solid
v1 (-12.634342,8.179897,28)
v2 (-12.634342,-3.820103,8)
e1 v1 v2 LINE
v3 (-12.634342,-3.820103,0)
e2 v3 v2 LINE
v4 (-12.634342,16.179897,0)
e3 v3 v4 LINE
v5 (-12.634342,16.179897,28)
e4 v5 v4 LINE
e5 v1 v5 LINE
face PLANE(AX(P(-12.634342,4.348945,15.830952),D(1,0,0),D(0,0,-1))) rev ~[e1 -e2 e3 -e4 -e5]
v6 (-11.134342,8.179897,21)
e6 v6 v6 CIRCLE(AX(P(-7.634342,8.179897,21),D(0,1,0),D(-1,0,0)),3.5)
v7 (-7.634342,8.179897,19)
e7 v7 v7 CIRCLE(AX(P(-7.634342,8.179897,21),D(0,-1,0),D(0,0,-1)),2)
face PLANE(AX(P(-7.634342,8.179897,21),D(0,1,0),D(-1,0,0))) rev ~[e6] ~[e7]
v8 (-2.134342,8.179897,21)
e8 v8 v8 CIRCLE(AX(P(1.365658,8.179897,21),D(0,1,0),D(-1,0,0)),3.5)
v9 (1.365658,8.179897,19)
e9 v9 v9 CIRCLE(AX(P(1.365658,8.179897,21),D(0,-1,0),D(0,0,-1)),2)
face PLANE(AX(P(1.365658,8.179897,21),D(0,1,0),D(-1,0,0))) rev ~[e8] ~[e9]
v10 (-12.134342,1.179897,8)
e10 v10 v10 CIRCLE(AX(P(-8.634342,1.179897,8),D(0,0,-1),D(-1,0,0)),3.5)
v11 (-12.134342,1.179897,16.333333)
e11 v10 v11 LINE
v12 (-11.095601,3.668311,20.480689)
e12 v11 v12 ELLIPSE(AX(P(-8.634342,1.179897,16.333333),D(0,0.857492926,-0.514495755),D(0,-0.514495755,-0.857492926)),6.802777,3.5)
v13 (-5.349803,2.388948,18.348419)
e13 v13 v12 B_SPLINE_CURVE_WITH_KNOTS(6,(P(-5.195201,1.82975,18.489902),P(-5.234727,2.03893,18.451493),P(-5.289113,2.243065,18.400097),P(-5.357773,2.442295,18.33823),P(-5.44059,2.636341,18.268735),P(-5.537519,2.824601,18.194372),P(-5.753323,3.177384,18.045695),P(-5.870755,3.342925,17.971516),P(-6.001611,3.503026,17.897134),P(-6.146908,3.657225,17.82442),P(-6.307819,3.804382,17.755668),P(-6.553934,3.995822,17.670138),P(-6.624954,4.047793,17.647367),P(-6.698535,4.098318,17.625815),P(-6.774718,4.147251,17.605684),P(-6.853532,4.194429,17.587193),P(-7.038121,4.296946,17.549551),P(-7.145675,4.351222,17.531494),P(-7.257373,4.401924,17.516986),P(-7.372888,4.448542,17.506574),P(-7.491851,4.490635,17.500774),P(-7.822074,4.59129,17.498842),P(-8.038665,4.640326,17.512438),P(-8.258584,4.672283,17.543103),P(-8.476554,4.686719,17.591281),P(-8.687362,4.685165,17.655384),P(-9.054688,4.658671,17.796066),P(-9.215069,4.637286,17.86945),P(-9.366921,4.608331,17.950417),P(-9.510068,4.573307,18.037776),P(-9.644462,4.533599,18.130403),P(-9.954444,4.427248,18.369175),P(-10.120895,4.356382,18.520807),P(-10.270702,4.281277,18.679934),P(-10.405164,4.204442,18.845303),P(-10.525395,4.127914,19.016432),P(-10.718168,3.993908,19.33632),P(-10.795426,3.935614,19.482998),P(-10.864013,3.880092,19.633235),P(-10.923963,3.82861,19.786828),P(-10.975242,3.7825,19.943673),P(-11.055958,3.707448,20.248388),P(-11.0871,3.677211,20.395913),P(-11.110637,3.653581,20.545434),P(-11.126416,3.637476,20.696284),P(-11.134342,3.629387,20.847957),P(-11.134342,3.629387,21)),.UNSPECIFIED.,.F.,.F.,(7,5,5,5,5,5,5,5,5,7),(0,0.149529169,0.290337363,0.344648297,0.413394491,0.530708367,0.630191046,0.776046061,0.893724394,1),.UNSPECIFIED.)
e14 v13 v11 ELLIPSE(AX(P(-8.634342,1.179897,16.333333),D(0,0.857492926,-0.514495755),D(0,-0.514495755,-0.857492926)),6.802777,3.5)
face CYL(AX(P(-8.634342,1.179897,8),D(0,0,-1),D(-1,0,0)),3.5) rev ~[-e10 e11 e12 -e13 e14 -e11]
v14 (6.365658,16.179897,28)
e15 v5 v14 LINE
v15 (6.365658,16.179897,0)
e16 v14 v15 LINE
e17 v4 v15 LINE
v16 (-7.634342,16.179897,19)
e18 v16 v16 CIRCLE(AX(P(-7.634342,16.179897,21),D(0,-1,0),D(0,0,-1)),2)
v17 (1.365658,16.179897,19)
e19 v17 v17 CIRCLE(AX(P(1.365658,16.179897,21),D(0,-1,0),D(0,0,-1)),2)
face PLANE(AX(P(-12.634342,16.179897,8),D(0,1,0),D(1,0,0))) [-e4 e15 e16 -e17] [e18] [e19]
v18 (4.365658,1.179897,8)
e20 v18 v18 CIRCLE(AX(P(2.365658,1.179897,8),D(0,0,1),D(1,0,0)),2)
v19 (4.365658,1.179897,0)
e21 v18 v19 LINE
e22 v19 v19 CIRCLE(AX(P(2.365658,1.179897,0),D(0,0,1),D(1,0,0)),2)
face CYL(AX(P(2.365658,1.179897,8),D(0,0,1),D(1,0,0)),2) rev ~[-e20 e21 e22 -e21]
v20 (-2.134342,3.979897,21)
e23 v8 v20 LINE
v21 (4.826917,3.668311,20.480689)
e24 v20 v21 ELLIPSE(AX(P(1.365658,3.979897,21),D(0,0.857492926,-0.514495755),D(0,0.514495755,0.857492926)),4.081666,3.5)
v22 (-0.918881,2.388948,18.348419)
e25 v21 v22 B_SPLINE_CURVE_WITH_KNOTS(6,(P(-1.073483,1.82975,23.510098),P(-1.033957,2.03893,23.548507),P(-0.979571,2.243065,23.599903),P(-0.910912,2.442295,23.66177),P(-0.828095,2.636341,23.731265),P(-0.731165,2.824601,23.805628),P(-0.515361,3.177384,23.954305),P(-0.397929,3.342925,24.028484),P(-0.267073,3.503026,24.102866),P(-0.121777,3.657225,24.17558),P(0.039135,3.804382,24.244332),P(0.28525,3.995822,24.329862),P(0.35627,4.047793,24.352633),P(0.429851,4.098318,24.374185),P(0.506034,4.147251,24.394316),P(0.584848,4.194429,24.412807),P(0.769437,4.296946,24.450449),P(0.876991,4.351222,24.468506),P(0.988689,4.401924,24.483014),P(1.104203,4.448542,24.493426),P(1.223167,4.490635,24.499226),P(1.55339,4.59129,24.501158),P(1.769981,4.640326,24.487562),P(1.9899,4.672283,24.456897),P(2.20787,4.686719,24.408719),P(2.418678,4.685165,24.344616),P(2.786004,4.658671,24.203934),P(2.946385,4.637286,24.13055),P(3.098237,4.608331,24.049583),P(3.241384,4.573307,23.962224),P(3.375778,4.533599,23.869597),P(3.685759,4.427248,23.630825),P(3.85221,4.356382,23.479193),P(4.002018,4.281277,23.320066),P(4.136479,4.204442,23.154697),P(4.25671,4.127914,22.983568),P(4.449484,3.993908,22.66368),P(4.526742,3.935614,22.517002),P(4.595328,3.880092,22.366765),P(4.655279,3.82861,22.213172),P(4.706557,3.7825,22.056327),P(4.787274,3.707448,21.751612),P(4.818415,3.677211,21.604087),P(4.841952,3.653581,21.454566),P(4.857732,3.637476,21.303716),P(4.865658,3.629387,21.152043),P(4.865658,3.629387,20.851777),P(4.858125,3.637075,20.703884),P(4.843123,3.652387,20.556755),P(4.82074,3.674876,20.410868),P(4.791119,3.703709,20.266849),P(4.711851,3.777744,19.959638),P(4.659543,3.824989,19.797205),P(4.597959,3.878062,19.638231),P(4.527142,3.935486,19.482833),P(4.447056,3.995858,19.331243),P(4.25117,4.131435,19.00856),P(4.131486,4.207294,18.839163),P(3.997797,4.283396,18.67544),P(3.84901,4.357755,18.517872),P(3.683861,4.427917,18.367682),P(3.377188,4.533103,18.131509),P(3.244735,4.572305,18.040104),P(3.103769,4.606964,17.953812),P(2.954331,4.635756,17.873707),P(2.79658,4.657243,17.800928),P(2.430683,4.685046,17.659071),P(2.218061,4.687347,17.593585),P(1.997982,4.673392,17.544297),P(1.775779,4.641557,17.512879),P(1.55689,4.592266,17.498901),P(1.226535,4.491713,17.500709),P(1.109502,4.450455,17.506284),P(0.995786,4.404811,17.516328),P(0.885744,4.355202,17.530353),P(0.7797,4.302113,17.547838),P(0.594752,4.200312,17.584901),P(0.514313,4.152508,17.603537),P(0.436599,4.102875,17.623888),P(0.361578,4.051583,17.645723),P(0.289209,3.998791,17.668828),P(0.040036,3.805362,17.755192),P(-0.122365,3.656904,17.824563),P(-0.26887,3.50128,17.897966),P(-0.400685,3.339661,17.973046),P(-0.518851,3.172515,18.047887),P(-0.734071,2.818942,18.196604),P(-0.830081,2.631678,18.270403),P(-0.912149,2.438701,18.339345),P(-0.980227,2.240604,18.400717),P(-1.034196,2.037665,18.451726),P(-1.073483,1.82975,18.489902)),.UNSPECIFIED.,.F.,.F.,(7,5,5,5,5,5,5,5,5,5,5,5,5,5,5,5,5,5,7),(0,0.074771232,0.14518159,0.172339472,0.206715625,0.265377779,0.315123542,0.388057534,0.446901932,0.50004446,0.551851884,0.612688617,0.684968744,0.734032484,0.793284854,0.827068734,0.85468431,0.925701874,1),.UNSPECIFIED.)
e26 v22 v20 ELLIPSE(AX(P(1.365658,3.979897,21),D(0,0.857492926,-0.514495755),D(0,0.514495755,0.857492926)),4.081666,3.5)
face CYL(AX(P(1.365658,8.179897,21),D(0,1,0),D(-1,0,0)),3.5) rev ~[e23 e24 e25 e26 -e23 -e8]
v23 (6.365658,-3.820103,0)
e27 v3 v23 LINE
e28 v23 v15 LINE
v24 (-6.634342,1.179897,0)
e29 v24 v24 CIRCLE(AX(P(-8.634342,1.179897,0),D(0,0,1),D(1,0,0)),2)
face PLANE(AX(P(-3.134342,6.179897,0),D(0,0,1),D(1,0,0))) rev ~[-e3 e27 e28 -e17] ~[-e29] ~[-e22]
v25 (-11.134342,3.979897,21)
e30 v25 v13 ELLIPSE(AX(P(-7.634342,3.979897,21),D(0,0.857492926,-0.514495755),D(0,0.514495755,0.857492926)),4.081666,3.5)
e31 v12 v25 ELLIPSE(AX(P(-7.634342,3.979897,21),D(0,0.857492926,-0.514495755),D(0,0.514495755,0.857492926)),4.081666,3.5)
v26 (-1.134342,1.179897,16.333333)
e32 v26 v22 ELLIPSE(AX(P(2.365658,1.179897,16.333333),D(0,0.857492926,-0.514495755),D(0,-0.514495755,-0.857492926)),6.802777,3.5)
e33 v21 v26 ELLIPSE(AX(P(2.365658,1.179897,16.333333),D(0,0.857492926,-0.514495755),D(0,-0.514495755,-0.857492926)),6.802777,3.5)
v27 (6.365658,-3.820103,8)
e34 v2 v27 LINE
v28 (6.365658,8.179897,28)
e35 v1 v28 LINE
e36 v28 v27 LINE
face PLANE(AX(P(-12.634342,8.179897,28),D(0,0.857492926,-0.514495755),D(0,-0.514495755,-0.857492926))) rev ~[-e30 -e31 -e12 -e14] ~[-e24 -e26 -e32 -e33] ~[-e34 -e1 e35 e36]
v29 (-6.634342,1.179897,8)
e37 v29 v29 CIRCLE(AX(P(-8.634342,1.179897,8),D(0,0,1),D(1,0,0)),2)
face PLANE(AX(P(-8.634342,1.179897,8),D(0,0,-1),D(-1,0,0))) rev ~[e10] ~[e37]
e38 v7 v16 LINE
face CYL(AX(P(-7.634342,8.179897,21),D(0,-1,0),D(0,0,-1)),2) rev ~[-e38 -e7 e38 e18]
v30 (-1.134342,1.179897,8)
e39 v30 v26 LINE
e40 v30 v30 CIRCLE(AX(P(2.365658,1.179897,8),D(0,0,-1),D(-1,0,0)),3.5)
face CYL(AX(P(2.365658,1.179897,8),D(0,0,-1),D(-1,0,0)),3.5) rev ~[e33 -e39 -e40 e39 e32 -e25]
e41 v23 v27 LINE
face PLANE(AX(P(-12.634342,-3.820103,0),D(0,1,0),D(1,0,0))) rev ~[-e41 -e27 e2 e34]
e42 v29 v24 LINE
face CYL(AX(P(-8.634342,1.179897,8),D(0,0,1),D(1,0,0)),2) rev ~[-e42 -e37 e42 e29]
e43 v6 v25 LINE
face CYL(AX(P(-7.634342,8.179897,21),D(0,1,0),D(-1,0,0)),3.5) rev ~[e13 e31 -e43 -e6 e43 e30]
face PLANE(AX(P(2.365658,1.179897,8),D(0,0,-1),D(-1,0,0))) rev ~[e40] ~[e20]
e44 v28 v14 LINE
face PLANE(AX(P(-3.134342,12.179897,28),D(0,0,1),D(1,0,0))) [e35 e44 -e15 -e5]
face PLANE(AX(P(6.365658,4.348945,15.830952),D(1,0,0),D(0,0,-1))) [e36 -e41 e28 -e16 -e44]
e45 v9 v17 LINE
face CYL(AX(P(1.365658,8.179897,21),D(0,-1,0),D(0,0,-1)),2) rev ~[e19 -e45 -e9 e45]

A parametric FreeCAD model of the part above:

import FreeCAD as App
import Part
import Sketcher
from FreeCAD import Vector
Q = App.Units.Quantity


def add_polygon(sketch, points):
    """Adds a closed chain of lines whose ends are joined by coincident constraints."""
    first, n = sketch.GeometryCount, len(points)
    for a, b in zip(points, points[1:] + points[:1]):
        sketch.addGeometry(Part.LineSegment(App.Vector(*a, 0), App.Vector(*b, 0)), False)
    for i in range(n):
        sketch.addConstraint(Sketcher.Constraint("Coincident", first + i, 2, first + (i + 1) % n, 1))

doc = App.newDocument("Part")
body = doc.addObject("PartDesign::Body", "Body")

# Sketch on XY plane
sketch1 = body.newObject("Sketcher::SketchObject", "Sketch")
sketch1.AttachmentSupport = (doc.getObject("XY_Plane"), [""])
sketch1.MapMode = "FlatFace"
add_polygon(sketch1, [(-13, 16), (-13, -4), (6, -4), (6, 16)])  # lines 0-3
sketch1.addConstraint([
    Sketcher.Constraint("Vertical", 0),
    Sketcher.Constraint("Horizontal", 1),
    Sketcher.Constraint("Vertical", 2),
    Sketcher.Constraint("Horizontal", 3),
    Sketcher.Constraint("DistanceX", 1, 1, 1, 2, Q("19 mm")),
    Sketcher.Constraint("DistanceY", 0, 2, 0, 1, Q("20 mm")),
    Sketcher.Constraint("DistanceX", 0, 2, -1, 1, Q("12.634342 mm")),
    Sketcher.Constraint("DistanceY", 0, 2, -1, 1, Q("3.820103 mm")),
])
pad1 = body.newObject("PartDesign::Pad", "Pad")
pad1.Profile = sketch1
pad1.Length = 8

# Sketch on XY plane
sketch2 = body.newObject("Sketcher::SketchObject", "Sketch001")
sketch2.AttachmentSupport = (doc.getObject("XY_Plane"), [""])
sketch2.MapMode = "FlatFace"
sketch2.AttachmentOffset = App.Placement(Vector(0, 0, 8), App.Rotation())
add_polygon(sketch2, [(-13, 16), (-13, 8), (6, 8), (6, 16)])  # lines 0-3
sketch2.addConstraint([
    Sketcher.Constraint("Vertical", 0),
    Sketcher.Constraint("Horizontal", 1),
    Sketcher.Constraint("Vertical", 2),
    Sketcher.Constraint("Horizontal", 3),
    Sketcher.Constraint("DistanceX", 1, 1, 1, 2, Q("19 mm")),
    Sketcher.Constraint("DistanceY", 0, 2, 0, 1, Q("8 mm")),
    Sketcher.Constraint("DistanceX", 0, 2, -1, 1, Q("12.634342 mm")),
    Sketcher.Constraint("DistanceY", -1, 1, 0, 2, Q("8.179897 mm")),
])
pad2 = body.newObject("PartDesign::Pad", "Pad001")
pad2.Profile = sketch2
pad2.Length = 20

# Sketch on XY plane
sketch3 = body.newObject("Sketcher::SketchObject", "Sketch002")
sketch3.AttachmentSupport = (doc.getObject("XY_Plane"), [""])
sketch3.MapMode = "FlatFace"
sketch3.AttachmentOffset = App.Placement(Vector(0, 0, 8), App.Rotation())
sketch3.addGeometry([
    Part.Circle(Vector(-8.6, 1.2, 0), Vector(0, 0, 1), 2),
    Part.Circle(Vector(2.4, 1.2, 0), Vector(0, 0, 1), 2),
], False)
sketch3.addConstraint([
    Sketcher.Constraint("Equal", 0, 1),
    Sketcher.Constraint("Horizontal", 0, 3, 1, 3),
    Sketcher.Constraint("Diameter", 0, Q("4 mm")),
    Sketcher.Constraint("DistanceX", 0, 3, 1, 3, Q("11 mm")),
    Sketcher.Constraint("DistanceX", 0, 3, -1, 1, Q("8.634342 mm")),
    Sketcher.Constraint("DistanceY", -1, 1, 0, 3, Q("1.179897 mm")),
])
pocket1 = body.newObject("PartDesign::Pocket", "Pocket")
pocket1.Profile = sketch3
pocket1.Length = 20

# Sketch on XZ plane
sketch4 = body.newObject("Sketcher::SketchObject", "Sketch003")
sketch4.AttachmentSupport = (doc.getObject("XZ_Plane"), [""])
sketch4.MapMode = "FlatFace"
sketch4.AttachmentOffset = App.Placement(Vector(0, 0, -8.179897), App.Rotation())
sketch4.addGeometry([
    Part.Circle(Vector(-7.6, 21, 0), Vector(0, 0, 1), 2),
    Part.Circle(Vector(1.4, 21, 0), Vector(0, 0, 1), 2),
], False)
sketch4.addConstraint([
    Sketcher.Constraint("Equal", 0, 1),
    Sketcher.Constraint("Horizontal", 0, 3, 1, 3),
    Sketcher.Constraint("Diameter", 0, Q("4 mm")),
    Sketcher.Constraint("DistanceY", -1, 1, 0, 3, Q("21 mm")),
    Sketcher.Constraint("DistanceX", 0, 3, 1, 3, Q("9 mm")),
    Sketcher.Constraint("DistanceX", 0, 3, -1, 1, Q("7.634342 mm")),
])
pocket2 = body.newObject("PartDesign::Pocket", "Pocket001")
pocket2.Profile = sketch4
pocket2.Length = 20

# Sketch on YZ plane
sketch5 = body.newObject("Sketcher::SketchObject", "Sketch004")
sketch5.AttachmentSupport = (doc.getObject("YZ_Plane"), [""])
sketch5.MapMode = "FlatFace"
sketch5.AttachmentOffset = App.Placement(Vector(0, 0, -12.634342), App.Rotation())
add_polygon(sketch5, [(-4, 8), (8, 28), (8, 8)])  # lines 0-2
sketch5.addConstraint([
    Sketcher.Constraint("Vertical", 1),
    Sketcher.Constraint("Horizontal", 2),
    Sketcher.Constraint("DistanceX", 2, 2, 2, 1, Q("12 mm")),
    Sketcher.Constraint("DistanceY", 1, 2, 1, 1, Q("20 mm")),
    Sketcher.Constraint("DistanceY", -1, 1, 0, 2, Q("28 mm")),
    Sketcher.Constraint("DistanceX", -1, 1, 0, 2, Q("8.179897 mm")),
])
pad3 = body.newObject("PartDesign::Pad", "Pad002")
pad3.Profile = sketch5
pad3.Length = 19

# Sketch on XZ plane
sketch6 = body.newObject("Sketcher::SketchObject", "Sketch005")
sketch6.AttachmentSupport = (doc.getObject("XZ_Plane"), [""])
sketch6.MapMode = "FlatFace"
sketch6.AttachmentOffset = App.Placement(Vector(0, 0, -8.179897), App.Rotation())
sketch6.addGeometry([
    Part.Circle(Vector(1.4, 21, 0), Vector(0, 0, 1), 3.5),
    Part.Circle(Vector(-7.6, 21, 0), Vector(0, 0, 1), 3.5),
], False)
sketch6.addConstraint([
    Sketcher.Constraint("Equal", 0, 1),
    Sketcher.Constraint("Horizontal", 0, 3, 1, 3),
    Sketcher.Constraint("Diameter", 0, Q("7 mm")),
    Sketcher.Constraint("DistanceY", -1, 1, 0, 3, Q("21 mm")),
    Sketcher.Constraint("DistanceX", 1, 3, 0, 3, Q("9 mm")),
    Sketcher.Constraint("DistanceX", -1, 1, 0, 3, Q("1.365658 mm")),
])
pocket3 = body.newObject("PartDesign::Pocket", "Pocket002")
pocket3.Profile = sketch6
pocket3.Length = 20
pocket3.Reversed = True

# Sketch on XY plane
sketch7 = body.newObject("Sketcher::SketchObject", "Sketch006")
sketch7.AttachmentSupport = (doc.getObject("XY_Plane"), [""])
sketch7.MapMode = "FlatFace"
sketch7.AttachmentOffset = App.Placement(Vector(0, 0, 8), App.Rotation())
sketch7.addGeometry([
    Part.Circle(Vector(-8.6, 1.2, 0), Vector(0, 0, 1), 3.5),
    Part.Circle(Vector(2.4, 1.2, 0), Vector(0, 0, 1), 3.5),
], False)
sketch7.addConstraint([
    Sketcher.Constraint("Equal", 0, 1),
    Sketcher.Constraint("Horizontal", 0, 3, 1, 3),
    Sketcher.Constraint("Diameter", 0, Q("7 mm")),
    Sketcher.Constraint("DistanceX", 0, 3, 1, 3, Q("11 mm")),
    Sketcher.Constraint("DistanceX", 0, 3, -1, 1, Q("8.634342 mm")),
    Sketcher.Constraint("DistanceY", -1, 1, 0, 3, Q("1.179897 mm")),
])
pocket4 = body.newObject("PartDesign::Pocket", "Pocket003")
pocket4.Profile = sketch7
pocket4.Length = 20
pocket4.Reversed = True

doc.recompute()
